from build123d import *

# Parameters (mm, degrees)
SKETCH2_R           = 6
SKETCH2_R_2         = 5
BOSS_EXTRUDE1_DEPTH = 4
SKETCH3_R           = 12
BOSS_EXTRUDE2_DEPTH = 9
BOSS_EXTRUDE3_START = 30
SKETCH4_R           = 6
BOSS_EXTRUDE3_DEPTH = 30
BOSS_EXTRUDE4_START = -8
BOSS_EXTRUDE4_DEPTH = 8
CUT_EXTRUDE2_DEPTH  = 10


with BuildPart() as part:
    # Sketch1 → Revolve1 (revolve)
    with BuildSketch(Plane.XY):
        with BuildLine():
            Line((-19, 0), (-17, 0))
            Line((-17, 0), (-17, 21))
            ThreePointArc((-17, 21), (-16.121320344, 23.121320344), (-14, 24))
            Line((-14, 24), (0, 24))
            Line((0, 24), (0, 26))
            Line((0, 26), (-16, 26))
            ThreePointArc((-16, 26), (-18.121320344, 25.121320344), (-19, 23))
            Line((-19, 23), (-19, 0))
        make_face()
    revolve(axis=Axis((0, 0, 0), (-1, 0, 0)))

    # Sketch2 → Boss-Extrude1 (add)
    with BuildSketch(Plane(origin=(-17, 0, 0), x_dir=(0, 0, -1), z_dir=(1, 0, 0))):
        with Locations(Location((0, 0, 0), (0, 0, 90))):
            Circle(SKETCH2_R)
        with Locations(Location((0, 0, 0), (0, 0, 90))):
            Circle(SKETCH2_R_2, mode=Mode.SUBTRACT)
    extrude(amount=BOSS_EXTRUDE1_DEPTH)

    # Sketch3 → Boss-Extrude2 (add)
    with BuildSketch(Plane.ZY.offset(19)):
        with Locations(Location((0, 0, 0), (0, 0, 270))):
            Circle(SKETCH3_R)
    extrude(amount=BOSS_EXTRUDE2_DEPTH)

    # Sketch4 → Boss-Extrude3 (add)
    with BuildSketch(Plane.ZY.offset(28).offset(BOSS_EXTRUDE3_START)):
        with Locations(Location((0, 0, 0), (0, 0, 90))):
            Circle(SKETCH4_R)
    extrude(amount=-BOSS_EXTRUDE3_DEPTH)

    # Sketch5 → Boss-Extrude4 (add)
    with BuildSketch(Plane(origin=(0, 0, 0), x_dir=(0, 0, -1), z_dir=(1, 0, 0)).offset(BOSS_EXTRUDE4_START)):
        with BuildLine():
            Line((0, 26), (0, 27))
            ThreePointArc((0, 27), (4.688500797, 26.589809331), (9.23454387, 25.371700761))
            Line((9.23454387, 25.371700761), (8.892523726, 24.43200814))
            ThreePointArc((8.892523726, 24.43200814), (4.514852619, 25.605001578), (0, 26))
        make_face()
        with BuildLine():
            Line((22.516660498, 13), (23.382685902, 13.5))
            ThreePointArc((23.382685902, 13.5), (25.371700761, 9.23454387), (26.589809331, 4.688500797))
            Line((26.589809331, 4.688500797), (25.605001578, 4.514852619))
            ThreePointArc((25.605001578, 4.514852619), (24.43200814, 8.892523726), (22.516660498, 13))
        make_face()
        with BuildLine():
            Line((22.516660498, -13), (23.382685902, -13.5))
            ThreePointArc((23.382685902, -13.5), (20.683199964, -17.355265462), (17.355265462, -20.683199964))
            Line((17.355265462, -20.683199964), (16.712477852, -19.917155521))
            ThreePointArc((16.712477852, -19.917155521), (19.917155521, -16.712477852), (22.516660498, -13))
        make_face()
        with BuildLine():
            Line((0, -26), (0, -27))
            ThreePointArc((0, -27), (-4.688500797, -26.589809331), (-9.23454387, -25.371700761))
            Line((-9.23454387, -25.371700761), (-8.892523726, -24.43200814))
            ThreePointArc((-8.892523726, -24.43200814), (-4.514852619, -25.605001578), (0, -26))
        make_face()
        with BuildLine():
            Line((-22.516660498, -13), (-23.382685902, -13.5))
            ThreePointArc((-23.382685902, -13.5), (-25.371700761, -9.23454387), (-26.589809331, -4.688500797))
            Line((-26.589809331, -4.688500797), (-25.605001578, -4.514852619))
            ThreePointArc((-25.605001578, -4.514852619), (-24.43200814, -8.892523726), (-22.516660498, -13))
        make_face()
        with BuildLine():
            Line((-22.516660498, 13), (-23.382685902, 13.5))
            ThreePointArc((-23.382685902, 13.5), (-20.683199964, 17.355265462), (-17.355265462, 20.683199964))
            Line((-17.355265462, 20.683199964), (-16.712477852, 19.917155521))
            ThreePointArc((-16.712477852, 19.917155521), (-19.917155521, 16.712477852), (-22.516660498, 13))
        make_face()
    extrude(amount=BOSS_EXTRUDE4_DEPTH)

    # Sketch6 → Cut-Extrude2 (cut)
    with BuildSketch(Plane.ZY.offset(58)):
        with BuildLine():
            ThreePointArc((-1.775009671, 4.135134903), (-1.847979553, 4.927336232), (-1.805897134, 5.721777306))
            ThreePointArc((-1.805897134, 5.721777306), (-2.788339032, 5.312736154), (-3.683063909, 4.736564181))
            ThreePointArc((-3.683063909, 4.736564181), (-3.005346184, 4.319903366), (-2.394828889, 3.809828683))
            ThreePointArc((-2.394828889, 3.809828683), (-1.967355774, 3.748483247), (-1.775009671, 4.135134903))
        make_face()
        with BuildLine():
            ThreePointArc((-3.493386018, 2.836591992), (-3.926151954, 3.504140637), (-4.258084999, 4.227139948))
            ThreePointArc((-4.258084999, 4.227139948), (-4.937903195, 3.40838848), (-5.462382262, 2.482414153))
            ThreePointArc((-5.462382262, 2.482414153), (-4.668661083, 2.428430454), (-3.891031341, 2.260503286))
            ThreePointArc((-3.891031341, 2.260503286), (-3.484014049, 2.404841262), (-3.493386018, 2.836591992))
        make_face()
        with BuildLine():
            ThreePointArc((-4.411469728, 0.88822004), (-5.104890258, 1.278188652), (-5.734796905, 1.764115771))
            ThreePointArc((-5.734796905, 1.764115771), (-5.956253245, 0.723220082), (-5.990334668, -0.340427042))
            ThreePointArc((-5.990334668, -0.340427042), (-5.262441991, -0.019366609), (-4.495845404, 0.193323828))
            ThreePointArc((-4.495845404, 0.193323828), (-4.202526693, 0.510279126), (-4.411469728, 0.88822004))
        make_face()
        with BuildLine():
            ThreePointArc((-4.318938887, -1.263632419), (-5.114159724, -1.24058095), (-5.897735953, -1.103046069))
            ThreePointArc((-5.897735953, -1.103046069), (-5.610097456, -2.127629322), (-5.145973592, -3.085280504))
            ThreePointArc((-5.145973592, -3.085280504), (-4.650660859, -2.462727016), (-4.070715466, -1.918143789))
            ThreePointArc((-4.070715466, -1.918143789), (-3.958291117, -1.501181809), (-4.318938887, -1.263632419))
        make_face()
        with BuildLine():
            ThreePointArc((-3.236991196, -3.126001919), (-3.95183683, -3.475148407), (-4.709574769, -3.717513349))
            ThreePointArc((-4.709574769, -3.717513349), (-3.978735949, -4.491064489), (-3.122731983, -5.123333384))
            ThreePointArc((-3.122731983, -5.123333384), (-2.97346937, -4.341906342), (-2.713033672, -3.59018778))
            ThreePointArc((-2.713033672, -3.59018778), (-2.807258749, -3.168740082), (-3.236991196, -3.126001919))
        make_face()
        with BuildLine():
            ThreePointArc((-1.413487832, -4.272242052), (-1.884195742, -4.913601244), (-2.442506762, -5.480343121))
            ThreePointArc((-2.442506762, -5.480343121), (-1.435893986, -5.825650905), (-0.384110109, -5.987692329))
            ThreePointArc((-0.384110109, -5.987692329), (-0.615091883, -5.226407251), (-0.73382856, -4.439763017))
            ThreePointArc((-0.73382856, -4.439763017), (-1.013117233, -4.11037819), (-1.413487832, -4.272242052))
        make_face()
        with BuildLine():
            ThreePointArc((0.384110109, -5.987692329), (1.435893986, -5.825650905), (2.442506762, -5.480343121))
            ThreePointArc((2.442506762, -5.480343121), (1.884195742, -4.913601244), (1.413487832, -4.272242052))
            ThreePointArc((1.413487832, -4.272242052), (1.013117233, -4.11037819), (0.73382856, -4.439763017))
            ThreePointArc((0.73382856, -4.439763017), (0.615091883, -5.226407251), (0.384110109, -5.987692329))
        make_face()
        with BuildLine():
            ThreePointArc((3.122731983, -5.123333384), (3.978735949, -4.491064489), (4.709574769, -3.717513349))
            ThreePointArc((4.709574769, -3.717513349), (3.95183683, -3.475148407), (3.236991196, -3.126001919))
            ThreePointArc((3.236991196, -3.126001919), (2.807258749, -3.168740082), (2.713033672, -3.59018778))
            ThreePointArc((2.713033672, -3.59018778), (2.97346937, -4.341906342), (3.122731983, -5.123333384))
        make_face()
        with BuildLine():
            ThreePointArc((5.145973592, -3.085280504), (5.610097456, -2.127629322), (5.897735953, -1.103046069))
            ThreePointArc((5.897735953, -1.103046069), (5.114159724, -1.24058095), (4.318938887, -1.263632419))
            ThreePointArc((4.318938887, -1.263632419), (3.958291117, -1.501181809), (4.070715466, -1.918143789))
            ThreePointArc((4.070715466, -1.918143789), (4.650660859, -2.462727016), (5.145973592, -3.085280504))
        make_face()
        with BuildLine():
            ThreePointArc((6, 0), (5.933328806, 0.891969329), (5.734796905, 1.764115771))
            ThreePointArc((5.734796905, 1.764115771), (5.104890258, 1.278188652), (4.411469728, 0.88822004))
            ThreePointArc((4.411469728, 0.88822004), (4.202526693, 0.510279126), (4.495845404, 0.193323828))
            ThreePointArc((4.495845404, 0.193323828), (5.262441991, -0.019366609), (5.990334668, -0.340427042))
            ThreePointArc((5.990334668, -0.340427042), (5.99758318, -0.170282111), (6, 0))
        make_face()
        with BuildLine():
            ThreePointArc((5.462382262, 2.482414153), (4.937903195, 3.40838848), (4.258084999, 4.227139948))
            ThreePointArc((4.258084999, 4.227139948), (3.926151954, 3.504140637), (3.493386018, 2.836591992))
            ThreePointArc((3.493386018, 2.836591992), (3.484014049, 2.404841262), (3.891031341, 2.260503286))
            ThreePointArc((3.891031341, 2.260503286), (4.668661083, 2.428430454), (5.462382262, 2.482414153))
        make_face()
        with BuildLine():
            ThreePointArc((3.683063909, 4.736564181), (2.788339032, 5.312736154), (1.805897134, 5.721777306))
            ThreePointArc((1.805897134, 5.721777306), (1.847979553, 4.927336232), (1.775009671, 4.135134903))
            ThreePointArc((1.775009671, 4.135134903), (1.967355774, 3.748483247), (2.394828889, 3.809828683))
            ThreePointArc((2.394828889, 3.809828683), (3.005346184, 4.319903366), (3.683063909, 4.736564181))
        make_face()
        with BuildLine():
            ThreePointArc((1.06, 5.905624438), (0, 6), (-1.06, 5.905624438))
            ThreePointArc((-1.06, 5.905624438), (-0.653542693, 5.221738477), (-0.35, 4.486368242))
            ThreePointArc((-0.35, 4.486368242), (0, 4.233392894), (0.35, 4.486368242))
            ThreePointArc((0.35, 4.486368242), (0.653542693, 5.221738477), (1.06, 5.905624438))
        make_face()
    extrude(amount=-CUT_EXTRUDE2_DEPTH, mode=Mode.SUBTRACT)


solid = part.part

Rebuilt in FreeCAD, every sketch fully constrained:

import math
import FreeCAD as App
import Part
import Sketcher
Q = App.Units.Quantity

doc = App.newDocument("Part")
body = doc.addObject("PartDesign::Body", "Body")

sketch1 = body.newObject("Sketcher::SketchObject", "Sketch")
sketch1.AttachmentSupport = (doc.getObject("XY_Plane"), [""])
sketch1.MapMode = "FlatFace"
sketch1.addGeometry([
    Part.LineSegment(App.Vector(-19, 0, 0), App.Vector(-17, 0, 0)),
    Part.LineSegment(App.Vector(-17, 0, 0), App.Vector(-17, 21, 0)),
    Part.ArcOfCircle(Part.Circle(App.Vector(-14, 21, 0), App.Vector(0, 0, 1), 3), math.radians(90), math.radians(180)),
    Part.LineSegment(App.Vector(-14, 24, 0), App.Vector(0, 24, 0)),
    Part.LineSegment(App.Vector(0, 24, 0), App.Vector(0, 26, 0)),
    Part.LineSegment(App.Vector(0, 26, 0), App.Vector(-16, 26, 0)),
    Part.ArcOfCircle(Part.Circle(App.Vector(-16, 23, 0), App.Vector(0, 0, 1), 3), math.radians(90), math.radians(180)),
    Part.LineSegment(App.Vector(-19, 23, 0), App.Vector(-19, 0, 0)),
], False)
sketch1.addConstraint([
    Sketcher.Constraint("Coincident", 0, 2, 1, 1),
    Sketcher.Constraint("Tangent", 1, 2, 2, 2),
    Sketcher.Constraint("Tangent", 2, 1, 3, 1),
    Sketcher.Constraint("Coincident", 3, 2, 4, 1),
    Sketcher.Constraint("Coincident", 4, 2, 5, 1),
    Sketcher.Constraint("Tangent", 5, 2, 6, 1),
    Sketcher.Constraint("Tangent", 6, 2, 7, 1),
    Sketcher.Constraint("Coincident", 7, 2, 0, 1),
    Sketcher.Constraint("Horizontal", 0),
    Sketcher.Constraint("Vertical", 1),
    Sketcher.Constraint("Horizontal", 3),
    Sketcher.Constraint("Vertical", 4),
    Sketcher.Constraint("Horizontal", 5),
    Sketcher.Constraint("Vertical", 7),
    Sketcher.Constraint("Equal", 2, 6),
    Sketcher.Constraint("PointOnObject", 0, 2, -1),
    Sketcher.Constraint("PointOnObject", 3, 2, -2),
    Sketcher.Constraint("Equal", 0, 4),
    Sketcher.Constraint("Radius", 2, Q("3 mm")),
    Sketcher.Constraint("DistanceX", 0, 1, 0, 2, Q("2 mm")),
    Sketcher.Constraint("DistanceX", 3, 1, 3, 2, Q("14 mm")),
    Sketcher.Constraint("DistanceY", 1, 1, 1, 2, Q("21 mm")),
])
revolution = body.newObject("PartDesign::Revolution", "Revolution")
revolution.Profile = sketch1
revolution.ReferenceAxis = (sketch1, ["H_Axis"])
revolution.Angle = 360

sketch2 = body.newObject("Sketcher::SketchObject", "Sketch001")
sketch2.AttachmentSupport = (doc.getObject("YZ_Plane"), [""])
sketch2.MapMode = "FlatFace"
sketch2.AttachmentOffset = App.Placement(App.Vector(0, 0, -17), App.Rotation())
sketch2.addGeometry([
    Part.Circle(App.Vector(0, 0, 0), App.Vector(0, 0, 1), 6),
    Part.Circle(App.Vector(0, 0, 0), App.Vector(0, 0, 1), 5),
], False)
sketch2.addConstraint([
    Sketcher.Constraint("Coincident", 0, 3, -1, 1),
    Sketcher.Constraint("Coincident", 1, 3, -1, 1),
    Sketcher.Constraint("Diameter", 0, Q("12 mm")),
    Sketcher.Constraint("Diameter", 1, Q("10 mm")),
])
pad1 = body.newObject("PartDesign::Pad", "Pad")
pad1.Profile = sketch2
pad1.Length = 4

sketch3 = body.newObject("Sketcher::SketchObject", "Sketch002")
sketch3.AttachmentSupport = (doc.getObject("YZ_Plane"), [""])
sketch3.MapMode = "FlatFace"
sketch3.AttachmentOffset = App.Placement(App.Vector(0, 0, -19), App.Rotation())
sketch3.addGeometry(Part.Circle(App.Vector(0, 0, 0), App.Vector(0, 0, 1), 12), False)
sketch3.addConstraint([
    Sketcher.Constraint("Coincident", 0, 3, -1, 1),
    Sketcher.Constraint("Diameter", 0, Q("24 mm")),
])
pad2 = body.newObject("PartDesign::Pad", "Pad001")
pad2.Profile = sketch3
pad2.Length = 9
pad2.Reversed = True

sketch4 = body.newObject("Sketcher::SketchObject", "Sketch003")
sketch4.AttachmentSupport = (doc.getObject("YZ_Plane"), [""])
sketch4.MapMode = "FlatFace"
sketch4.AttachmentOffset = App.Placement(App.Vector(0, 0, -58), App.Rotation())
sketch4.addGeometry(Part.Circle(App.Vector(0, 0, 0), App.Vector(0, 0, 1), 6), False)
sketch4.addConstraint([
    Sketcher.Constraint("Coincident", 0, 3, -1, 1),
    Sketcher.Constraint("Diameter", 0, Q("12 mm")),
])
pad3 = body.newObject("PartDesign::Pad", "Pad002")
pad3.Profile = sketch4
pad3.Length = 30

sketch5 = body.newObject("Sketcher::SketchObject", "Sketch004")
sketch5.AttachmentSupport = (doc.getObject("YZ_Plane"), [""])
sketch5.MapMode = "FlatFace"
sketch5.AttachmentOffset = App.Placement(App.Vector(0, 0, -8), App.Rotation())
sketch5.addGeometry([
    Part.LineSegment(App.Vector(27, 0, 0), App.Vector(26, 0, 0)),
    Part.ArcOfCircle(Part.Circle(App.Vector(0, 0, 0), App.Vector(0, 0, 1), 26), math.radians(-20), math.radians(0)),
    Part.LineSegment(App.Vector(24.4, -8.9, 0), App.Vector(25.4, -9.2, 0)),
    Part.ArcOfCircle(Part.Circle(App.Vector(0, 0, 0), App.Vector(0, 0, 1), 27), math.radians(-20), math.radians(0)),
    Part.LineSegment(App.Vector(13.5, -23.4, 0), App.Vector(13, -22.5, 0)),
    Part.ArcOfCircle(Part.Circle(App.Vector(0, 0, 0), App.Vector(0, 0, 1), 26), math.radians(-80), math.radians(-60)),
    Part.LineSegment(App.Vector(4.5, -25.6, 0), App.Vector(4.7, -26.6, 0)),
    Part.ArcOfCircle(Part.Circle(App.Vector(0, 0, 0), App.Vector(0, 0, 1), 27), math.radians(-80), math.radians(-60)),
    Part.LineSegment(App.Vector(-13.5, -23.4, 0), App.Vector(-13, -22.5, 0)),
    Part.ArcOfCircle(Part.Circle(App.Vector(0, 0, 0), App.Vector(0, 0, 1), 26), math.radians(-140), math.radians(-120)),
    Part.LineSegment(App.Vector(-19.9, -16.7, 0), App.Vector(-20.7, -17.4, 0)),
    Part.ArcOfCircle(Part.Circle(App.Vector(0, 0, 0), App.Vector(0, 0, 1), 27), math.radians(-140), math.radians(-120)),
    Part.LineSegment(App.Vector(-27, 0, 0), App.Vector(-26, 0, 0)),
    Part.ArcOfCircle(Part.Circle(App.Vector(0, 0, 0), App.Vector(0, 0, 1), 26), math.radians(160), math.radians(180)),
    Part.LineSegment(App.Vector(-24.4, 8.9, 0), App.Vector(-25.4, 9.2, 0)),
    Part.ArcOfCircle(Part.Circle(App.Vector(0, 0, 0), App.Vector(0, 0, 1), 27), math.radians(160), math.radians(180)),
    Part.LineSegment(App.Vector(-13.5, 23.4, 0), App.Vector(-13, 22.5, 0)),
    Part.ArcOfCircle(Part.Circle(App.Vector(0, 0, 0), App.Vector(0, 0, 1), 26), math.radians(100), math.radians(120)),
    Part.LineSegment(App.Vector(-4.5, 25.6, 0), App.Vector(-4.7, 26.6, 0)),
    Part.ArcOfCircle(Part.Circle(App.Vector(0, 0, 0), App.Vector(0, 0, 1), 27), math.radians(100), math.radians(120)),
    Part.LineSegment(App.Vector(13.5, 23.4, 0), App.Vector(13, 22.5, 0)),
    Part.ArcOfCircle(Part.Circle(App.Vector(0, 0, 0), App.Vector(0, 0, 1), 26), math.radians(40), math.radians(60)),
    Part.LineSegment(App.Vector(19.9, 16.7, 0), App.Vector(20.7, 17.4, 0)),
    Part.ArcOfCircle(Part.Circle(App.Vector(0, 0, 0), App.Vector(0, 0, 1), 27), math.radians(40), math.radians(60)),
], False)
sketch5.addConstraint([
    Sketcher.Constraint("Coincident", 0, 2, 1, 2),
    Sketcher.Constraint("Coincident", 1, 1, 2, 1),
    Sketcher.Constraint("Coincident", 2, 2, 3, 1),
    Sketcher.Constraint("Coincident", 3, 2, 0, 1),
    Sketcher.Constraint("Coincident", 4, 2, 5, 2),
    Sketcher.Constraint("Coincident", 5, 1, 6, 1),
    Sketcher.Constraint("Coincident", 6, 2, 7, 1),
    Sketcher.Constraint("Coincident", 7, 2, 4, 1),
    Sketcher.Constraint("Coincident", 8, 2, 9, 2),
    Sketcher.Constraint("Coincident", 9, 1, 10, 1),
    Sketcher.Constraint("Coincident", 10, 2, 11, 1),
    Sketcher.Constraint("Coincident", 11, 2, 8, 1),
    Sketcher.Constraint("Coincident", 12, 2, 13, 2),
    Sketcher.Constraint("Coincident", 13, 1, 14, 1),
    Sketcher.Constraint("Coincident", 14, 2, 15, 1),
    Sketcher.Constraint("Coincident", 15, 2, 12, 1),
    Sketcher.Constraint("Coincident", 16, 2, 17, 2),
    Sketcher.Constraint("Coincident", 17, 1, 18, 1),
    Sketcher.Constraint("Coincident", 18, 2, 19, 1),
    Sketcher.Constraint("Coincident", 19, 2, 16, 1),
    Sketcher.Constraint("Coincident", 20, 2, 21, 2),
    Sketcher.Constraint("Coincident", 21, 1, 22, 1),
    Sketcher.Constraint("Coincident", 22, 2, 23, 1),
    Sketcher.Constraint("Coincident", 23, 2, 20, 1),
    Sketcher.Constraint("Horizontal", 0),
    Sketcher.Constraint("Horizontal", 12),
    Sketcher.Constraint("Coincident", 1, 3, -1, 1),
    Sketcher.Constraint("Coincident", 3, 3, -1, 1),
    Sketcher.Constraint("Coincident", 5, 3, -1, 1),
    Sketcher.Constraint("Coincident", 7, 3, -1, 1),
    Sketcher.Constraint("Coincident", 9, 3, -1, 1),
    Sketcher.Constraint("Coincident", 11, 3, -1, 1),
    Sketcher.Constraint("Coincident", 13, 3, -1, 1),
    Sketcher.Constraint("Coincident", 15, 3, -1, 1),
    Sketcher.Constraint("Coincident", 17, 3, -1, 1),
    Sketcher.Constraint("Coincident", 19, 3, -1, 1),
    Sketcher.Constraint("Coincident", 21, 3, -1, 1),
    Sketcher.Constraint("Coincident", 23, 3, -1, 1),
    Sketcher.Constraint("Equal", 1, 5),
    Sketcher.Constraint("Equal", 3, 7),
    Sketcher.Constraint("Equal", 5, 9),
    Sketcher.Constraint("Equal", 7, 11),
    Sketcher.Constraint("Equal", 9, 13),
    Sketcher.Constraint("Equal", 11, 15),
    Sketcher.Constraint("Equal", 13, 17),
    Sketcher.Constraint("Equal", 15, 19),
    Sketcher.Constraint("Equal", 17, 21),
    Sketcher.Constraint("Equal", 19, 23),
    Sketcher.Constraint("PointOnObject", 0, 2, -1),
    Sketcher.Constraint("PointOnObject", 12, 2, -1),
    Sketcher.Constraint("Parallel", 2, 14),
    Sketcher.Constraint("Parallel", 4, 16),
    Sketcher.Constraint("Parallel", 6, 18),
    Sketcher.Constraint("Parallel", 8, 20),
    Sketcher.Constraint("Parallel", 10, 22),
    Sketcher.Constraint("Horizontal", 4, 2, 8, 2),
    Sketcher.Constraint("Horizontal", 7, 2, 11, 2),
    Sketcher.Constraint("Horizontal", 16, 2, 20, 2),
    Sketcher.Constraint("Vertical", 8, 2, 16, 2),
    Sketcher.Constraint("Radius", 1, Q("26 mm")),
    Sketcher.Constraint("Radius", 3, Q("27 mm")),
    Sketcher.Constraint("Angle", 2, Q("-20 deg")),
    Sketcher.Constraint("Angle", 4, Q("120 deg")),
    Sketcher.Constraint("Angle", 6, Q("-80 deg")),
    Sketcher.Constraint("Angle", 10, Q("-140 deg")),
    Sketcher.Constraint("DistanceX", -1, 1, 4, 2, Q("13 mm")),
    Sketcher.Constraint("DistanceY", 5, 1, -1, 1, Q("25.605002 mm")),
    Sketcher.Constraint("DistanceY", -1, 1, 17, 1, Q("25.605002 mm")),
    Sketcher.Constraint("DistanceX", -1, 1, 2, 2, Q("25.371701 mm")),
    Sketcher.Constraint("DistanceX", 10, 2, -1, 1, Q("20.6832 mm")),
    Sketcher.Constraint("DistanceX", 14, 2, -1, 1, Q("25.371701 mm")),
    Sketcher.Constraint("DistanceX", -1, 1, 22, 2, Q("20.6832 mm")),
])
pad4 = body.newObject("PartDesign::Pad", "Pad003")
pad4.Profile = sketch5
pad4.Length = 8

sketch6 = body.newObject("Sketcher::SketchObject", "Sketch005")
sketch6.AttachmentSupport = (doc.getObject("YZ_Plane"), [""])
sketch6.MapMode = "FlatFace"
sketch6.AttachmentOffset = App.Placement(App.Vector(0, 0, -58), App.Rotation())
sketch6.addGeometry([
    Part.ArcOfCircle(Part.Circle(App.Vector(5.03, 3.65, 0), App.Vector(0, 0, 1), 5.5), math.radians(-99.41), math.radians(-82.82)),
    Part.ArcOfCircle(Part.Circle(App.Vector(0, 0, 0), App.Vector(0, 0, 1), 6), math.radians(-38), math.radians(-18)),
    Part.ArcOfCircle(Part.Circle(App.Vector(-0.14, -6.22, 0), App.Vector(0, 0, 1), 5.5), math.radians(27.44), math.radians(44.03)),
    Part.ArcOfCircle(Part.Circle(App.Vector(4.07, -2.14, 0), App.Vector(0, 0, 1), 0.37), math.radians(81), math.radians(224)),
    Part.ArcOfCircle(Part.Circle(App.Vector(6.15, 0.89, 0), App.Vector(0, 0, 1), 5.5), math.radians(-127.1), math.radians(-110.51)),
    Part.ArcOfCircle(Part.Circle(App.Vector(0, 0, 0), App.Vector(0, 0, 1), 6), math.radians(-66), math.radians(-45)),
    Part.ArcOfCircle(Part.Circle(App.Vector(-3.02, -5.44, 0), App.Vector(0, 0, 1), 5.5), math.radians(-0.26), math.radians(16.33)),
    Part.ArcOfCircle(Part.Circle(App.Vector(2.61, -3.79, 0), App.Vector(0, 0, 1), 0.37), math.radians(53), math.radians(196)),
    Part.ArcOfCircle(Part.Circle(App.Vector(5.86, -2.07, 0), App.Vector(0, 0, 1), 5.5), math.radians(-154.79), math.radians(-138.2)),
    Part.ArcOfCircle(Part.Circle(App.Vector(0, 0, 0), App.Vector(0, 0, 1), 6), math.radians(-93), math.radians(-73)),
    Part.ArcOfCircle(Part.Circle(App.Vector(-5.2, -3.41, 0), App.Vector(0, 0, 1), 5.5), math.radians(-27.95), math.radians(-11.36)),
    Part.ArcOfCircle(Part.Circle(App.Vector(0.55, -4.57, 0), App.Vector(0, 0, 1), 0.37), math.radians(25), math.radians(169)),
    Part.ArcOfCircle(Part.Circle(App.Vector(4.23, -4.56, 0), App.Vector(0, 0, 1), 5.5), math.radians(177.51), math.radians(194.1)),
    Part.ArcOfCircle(Part.Circle(App.Vector(0, 0, 0), App.Vector(0, 0, 1), 6), math.radians(-121), math.radians(-101)),
    Part.ArcOfCircle(Part.Circle(App.Vector(-6.19, -0.61, 0), App.Vector(0, 0, 1), 5.5), math.radians(-55.64), math.radians(-39.05)),
    Part.ArcOfCircle(Part.Circle(App.Vector(-1.63, -4.3, 0), App.Vector(0, 0, 1), 0.37), math.radians(-2), math.radians(141)),
    Part.ArcOfCircle(Part.Circle(App.Vector(1.63, -6, 0), App.Vector(0, 0, 1), 5.5), math.radians(149.82), math.radians(166.41)),
    Part.ArcOfCircle(Part.Circle(App.Vector(0, 0, 0), App.Vector(0, 0, 1), 6), math.radians(-149), math.radians(-128)),
    Part.ArcOfCircle(Part.Circle(App.Vector(-5.76, 2.34, 0), App.Vector(0, 0, 1), 5.5), math.radians(-83.33), math.radians(-66.74)),
    Part.ArcOfCircle(Part.Circle(App.Vector(-3.44, -3.05, 0), App.Vector(0, 0, 1), 0.37), math.radians(-30), math.radians(113)),
    Part.ArcOfCircle(Part.Circle(App.Vector(-1.35, -6.07, 0), App.Vector(0, 0, 1), 5.5), math.radians(122.13), math.radians(138.72)),
    Part.ArcOfCircle(Part.Circle(App.Vector(0, 0, 0), App.Vector(0, 0, 1), 6), math.radians(-176), math.radians(-156)),
    Part.ArcOfCircle(Part.Circle(App.Vector(-4.01, 4.75, 0), App.Vector(0, 0, 1), 5.5), math.radians(-111.03), math.radians(-94.44)),
    Part.ArcOfCircle(Part.Circle(App.Vector(-4.47, -1.1, 0), App.Vector(0, 0, 1), 0.37), math.radians(-58), math.radians(86)),
    Part.ArcOfCircle(Part.Circle(App.Vector(0, 0, 0), App.Vector(0, 0, 1), 6), math.radians(156), math.radians(176)),
    Part.ArcOfCircle(Part.Circle(App.Vector(-1.35, 6.07, 0), App.Vector(0, 0, 1), 5.5), math.radians(-138.72), math.radians(-122.13)),
    Part.ArcOfCircle(Part.Circle(App.Vector(-4.47, 1.1, 0), App.Vector(0, 0, 1), 0.37), math.radians(-86), math.radians(58)),
    Part.ArcOfCircle(Part.Circle(App.Vector(-4.01, -4.75, 0), App.Vector(0, 0, 1), 5.5), math.radians(94.44), math.radians(111.03)),
    Part.ArcOfCircle(Part.Circle(App.Vector(0, 0, 0), App.Vector(0, 0, 1), 6), math.radians(128), math.radians(149)),
    Part.ArcOfCircle(Part.Circle(App.Vector(1.63, 6, 0), App.Vector(0, 0, 1), 5.5), math.radians(-166.41), math.radians(-149.82)),
    Part.ArcOfCircle(Part.Circle(App.Vector(-3.44, 3.05, 0), App.Vector(0, 0, 1), 0.37), math.radians(-113), math.radians(30)),
    Part.ArcOfCircle(Part.Circle(App.Vector(-5.76, -2.34, 0), App.Vector(0, 0, 1), 5.5), math.radians(66.74), math.radians(83.33)),
    Part.ArcOfCircle(Part.Circle(App.Vector(0, 0, 0), App.Vector(0, 0, 1), 6), math.radians(101), math.radians(121)),
    Part.ArcOfCircle(Part.Circle(App.Vector(4.23, 4.56, 0), App.Vector(0, 0, 1), 5.5), math.radians(165.9), math.radians(182.49)),
    Part.ArcOfCircle(Part.Circle(App.Vector(-1.63, 4.3, 0), App.Vector(0, 0, 1), 0.37), math.radians(-141), math.radians(2)),
    Part.ArcOfCircle(Part.Circle(App.Vector(-6.19, 0.61, 0), App.Vector(0, 0, 1), 5.5), math.radians(39.05), math.radians(55.64)),
    Part.ArcOfCircle(Part.Circle(App.Vector(0, 0, 0), App.Vector(0, 0, 1), 6), math.radians(72.9), math.radians(90)),
    Part.ArcOfCircle(Part.Circle(App.Vector(5.86, 2.07, 0), App.Vector(0, 0, 1), 5.5), math.radians(138.2), math.radians(154.79)),
    Part.ArcOfCircle(Part.Circle(App.Vector(0.55, 4.57, 0), App.Vector(0, 0, 1), 0.37), math.radians(-169), math.radians(-25)),
    Part.ArcOfCircle(Part.Circle(App.Vector(-5.2, 3.41, 0), App.Vector(0, 0, 1), 5.5), math.radians(11.36), math.radians(27.95)),
    Part.ArcOfCircle(Part.Circle(App.Vector(0, 0, 0), App.Vector(0, 0, 1), 6), math.radians(90), math.radians(93.25)),
    Part.ArcOfCircle(Part.Circle(App.Vector(0, 0, 0), App.Vector(0, 0, 1), 6), math.radians(45), math.radians(66)),
    Part.ArcOfCircle(Part.Circle(App.Vector(6.15, -0.89, 0), App.Vector(0, 0, 1), 5.5), math.radians(110.51), math.radians(127.1)),
    Part.ArcOfCircle(Part.Circle(App.Vector(2.61, 3.79, 0), App.Vector(0, 0, 1), 0.37), math.radians(164), math.radians(307)),
    Part.ArcOfCircle(Part.Circle(App.Vector(-3.02, 5.44, 0), App.Vector(0, 0, 1), 5.5), math.radians(-16.33), math.radians(0.26)),
    Part.ArcOfCircle(Part.Circle(App.Vector(0, 0, 0), App.Vector(0, 0, 1), 6), math.radians(18), math.radians(38)),
    Part.ArcOfCircle(Part.Circle(App.Vector(5.03, -3.65, 0), App.Vector(0, 0, 1), 5.5), math.radians(82.82), math.radians(99.41)),
    Part.ArcOfCircle(Part.Circle(App.Vector(4.07, 2.14, 0), App.Vector(0, 0, 1), 0.37), math.radians(136), math.radians(279)),
    Part.ArcOfCircle(Part.Circle(App.Vector(-0.14, 6.22, 0), App.Vector(0, 0, 1), 5.5), math.radians(-44.03), math.radians(-27.44)),
    Part.ArcOfCircle(Part.Circle(App.Vector(0, 0, 0), App.Vector(0, 0, 1), 6), math.radians(-10), math.radians(10)),
    Part.ArcOfCircle(Part.Circle(App.Vector(2.76, -5.57, 0), App.Vector(0, 0, 1), 5.5), math.radians(55.13), math.radians(71.72)),
    Part.ArcOfCircle(Part.Circle(App.Vector(4.6, 0, 0), App.Vector(0, 0, 1), 0.37), math.radians(108), math.radians(252)),
    Part.ArcOfCircle(Part.Circle(App.Vector(2.76, 5.57, 0), App.Vector(0, 0, 1), 5.5), math.radians(-71.72), math.radians(-55.13)),
], False)
sketch6.addConstraint([
    Sketcher.Constraint("Coincident", 0, 2, 1, 2),
    Sketcher.Constraint("Coincident", 1, 1, 2, 1),
    Sketcher.Constraint("Tangent", 2, 2, 3, 2),
    Sketcher.Constraint("Tangent", 3, 1, 0, 1),
    Sketcher.Constraint("Coincident", 4, 2, 5, 2),
    Sketcher.Constraint("Coincident", 5, 1, 6, 1),
    Sketcher.Constraint("Tangent", 6, 2, 7, 2),
    Sketcher.Constraint("Tangent", 7, 1, 4, 1),
    Sketcher.Constraint("Coincident", 8, 2, 9, 2),
    Sketcher.Constraint("Coincident", 9, 1, 10, 1),
    Sketcher.Constraint("Tangent", 10, 2, 11, 2),
    Sketcher.Constraint("Tangent", 11, 1, 8, 1),
    Sketcher.Constraint("Coincident", 12, 2, 13, 2),
    Sketcher.Constraint("Coincident", 13, 1, 14, 1),
    Sketcher.Constraint("Tangent", 14, 2, 15, 2),
    Sketcher.Constraint("Tangent", 15, 1, 12, 1),
    Sketcher.Constraint("Coincident", 16, 2, 17, 2),
    Sketcher.Constraint("Coincident", 17, 1, 18, 1),
    Sketcher.Constraint("Tangent", 18, 2, 19, 2),
    Sketcher.Constraint("Tangent", 19, 1, 16, 1),
    Sketcher.Constraint("Coincident", 20, 2, 21, 2),
    Sketcher.Constraint("Coincident", 21, 1, 22, 1),
    Sketcher.Constraint("Tangent", 22, 2, 23, 2),
    Sketcher.Constraint("Tangent", 23, 1, 20, 1),
    Sketcher.Constraint("Coincident", 24, 1, 25, 1),
    Sketcher.Constraint("Tangent", 25, 2, 26, 2),
    Sketcher.Constraint("Tangent", 26, 1, 27, 1),
    Sketcher.Constraint("Coincident", 27, 2, 24, 2),
    Sketcher.Constraint("Coincident", 28, 1, 29, 1),
    Sketcher.Constraint("Tangent", 29, 2, 30, 2),
    Sketcher.Constraint("Tangent", 30, 1, 31, 1),
    Sketcher.Constraint("Coincident", 31, 2, 28, 2),
    Sketcher.Constraint("Coincident", 32, 1, 33, 1),
    Sketcher.Constraint("Tangent", 33, 2, 34, 2),
    Sketcher.Constraint("Tangent", 34, 1, 35, 1),
    Sketcher.Constraint("Coincident", 35, 2, 32, 2),
    Sketcher.Constraint("Coincident", 36, 1, 37, 1),
    Sketcher.Constraint("Tangent", 37, 2, 38, 2),
    Sketcher.Constraint("Tangent", 38, 1, 39, 1),
    Sketcher.Constraint("Coincident", 39, 2, 40, 2),
    Sketcher.Constraint("Tangent", 40, 1, 36, 2),
    Sketcher.Constraint("Coincident", 41, 1, 42, 1),
    Sketcher.Constraint("Tangent", 42, 2, 43, 2),
    Sketcher.Constraint("Tangent", 43, 1, 44, 1),
    Sketcher.Constraint("Coincident", 44, 2, 41, 2),
    Sketcher.Constraint("Coincident", 45, 1, 46, 1),
    Sketcher.Constraint("Tangent", 46, 2, 47, 2),
    Sketcher.Constraint("Tangent", 47, 1, 48, 1),
    Sketcher.Constraint("Coincident", 48, 2, 45, 2),
    Sketcher.Constraint("Coincident", 49, 1, 50, 1),
    Sketcher.Constraint("Tangent", 50, 2, 51, 2),
    Sketcher.Constraint("Tangent", 51, 1, 52, 1),
    Sketcher.Constraint("Coincident", 52, 2, 49, 2),
    Sketcher.Constraint("Coincident", 1, 3, -1, 1),
    Sketcher.Constraint("Coincident", 5, 3, -1, 1),
    Sketcher.Constraint("Coincident", 9, 3, -1, 1),
    Sketcher.Constraint("Coincident", 13, 3, -1, 1),
    Sketcher.Constraint("Coincident", 17, 3, -1, 1),
    Sketcher.Constraint("Coincident", 21, 3, -1, 1),
    Sketcher.Constraint("Coincident", 24, 3, -1, 1),
    Sketcher.Constraint("Coincident", 28, 3, -1, 1),
    Sketcher.Constraint("Coincident", 32, 3, -1, 1),
    Sketcher.Constraint("Coincident", 36, 3, -1, 1),
    Sketcher.Constraint("Coincident", 41, 3, -1, 1),
    Sketcher.Constraint("Coincident", 45, 3, -1, 1),
    Sketcher.Constraint("Coincident", 49, 3, -1, 1),
    Sketcher.Constraint("Equal", 0, 2),
    Sketcher.Constraint("Equal", 2, 4),
    Sketcher.Constraint("Equal", 1, 5),
    Sketcher.Constraint("Equal", 4, 6),
    Sketcher.Constraint("Equal", 3, 7),
    Sketcher.Constraint("Equal", 6, 8),
    Sketcher.Constraint("Equal", 5, 9),
    Sketcher.Constraint("Equal", 8, 10),
    Sketcher.Constraint("Equal", 7, 11),
    Sketcher.Constraint("Equal", 10, 12),
    Sketcher.Constraint("Equal", 9, 13),
    Sketcher.Constraint("Equal", 12, 14),
    Sketcher.Constraint("Equal", 11, 15),
    Sketcher.Constraint("Equal", 14, 16),
    Sketcher.Constraint("Equal", 13, 17),
    Sketcher.Constraint("Equal", 16, 18),
    Sketcher.Constraint("Equal", 15, 19),
    Sketcher.Constraint("Equal", 18, 20),
    Sketcher.Constraint("Equal", 17, 21),
    Sketcher.Constraint("Equal", 20, 22),
    Sketcher.Constraint("Equal", 19, 23),
    Sketcher.Constraint("Equal", 21, 24),
    Sketcher.Constraint("Equal", 22, 25),
    Sketcher.Constraint("Equal", 23, 26),
    Sketcher.Constraint("Equal", 25, 27),
    Sketcher.Constraint("Equal", 24, 28),
    Sketcher.Constraint("Equal", 27, 29),
    Sketcher.Constraint("Equal", 26, 30),
    Sketcher.Constraint("Equal", 29, 31),
    Sketcher.Constraint("Equal", 28, 32),
    Sketcher.Constraint("Equal", 31, 33),
    Sketcher.Constraint("Equal", 30, 34),
    Sketcher.Constraint("Equal", 33, 35),
    Sketcher.Constraint("Equal", 32, 36),
    Sketcher.Constraint("Equal", 35, 37),
    Sketcher.Constraint("Equal", 34, 38),
    Sketcher.Constraint("Equal", 37, 39),
    Sketcher.Constraint("Equal", 36, 40),
    Sketcher.Constraint("Equal", 40, 41),
    Sketcher.Constraint("Equal", 39, 42),
    Sketcher.Constraint("Equal", 38, 43),
    Sketcher.Constraint("Equal", 42, 44),
    Sketcher.Constraint("Equal", 41, 45),
    Sketcher.Constraint("Equal", 44, 46),
    Sketcher.Constraint("Equal", 43, 47),
    Sketcher.Constraint("Equal", 46, 48),
    Sketcher.Constraint("Equal", 45, 49),
    Sketcher.Constraint("Equal", 48, 50),
    Sketcher.Constraint("Equal", 47, 51),
    Sketcher.Constraint("Equal", 50, 52),
    Sketcher.Constraint("Symmetric", 20, 3, 25, 3, -1),
    Sketcher.Constraint("Symmetric", 22, 3, 27, 3, -1),
    Sketcher.Constraint("Symmetric", 16, 3, 29, 3, -1),
    Sketcher.Constraint("Symmetric", 18, 3, 31, 3, -1),
    Sketcher.Constraint("Symmetric", 12, 3, 33, 3, -1),
    Sketcher.Constraint("Symmetric", 14, 3, 35, 3, -1),
    Sketcher.Constraint("Symmetric", 8, 3, 37, 3, -1),
    Sketcher.Constraint("Symmetric", 10, 3, 39, 3, -1),
    Sketcher.Constraint("Symmetric", 4, 3, 42, 3, -1),
    Sketcher.Constraint("Symmetric", 6, 3, 44, 3, -1),
    Sketcher.Constraint("Symmetric", 0, 3, 46, 3, -1),
    Sketcher.Constraint("Symmetric", 2, 3, 48, 3, -1),
    Sketcher.Constraint("Symmetric", 50, 3, 52, 3, -1),
    Sketcher.Constraint("PointOnObject", 40, 1, -2),
    Sketcher.Constraint("Radius", 1, Q("6 mm")),
    Sketcher.Constraint("Radius", 0, Q("5.5 mm")),
    Sketcher.Constraint("DistanceY", 49, 1, -1, 1, Q("1.06 mm")),
    Sketcher.Constraint("DistanceY", 50, 2, -1, 1, Q("0.35 mm")),
    Sketcher.Constraint("DistanceX", -1, 1, 51, 3, Q("4.601999 mm")),
    Sketcher.Constraint("DistanceX", 19, 1, -1, 1, Q("3.126002 mm")),
    Sketcher.Constraint("DistanceY", -1, 1, 0, 3, Q("3.650979 mm")),
    Sketcher.Constraint("DistanceX", 2, 3, -1, 1, Q("0.14484 mm")),
    Sketcher.Constraint("DistanceY", 2, 3, -1, 1, Q("6.21721 mm")),
    Sketcher.Constraint("DistanceX", -1, 1, 4, 3, Q("6.154421 mm")),
    Sketcher.Constraint("DistanceX", 6, 3, -1, 1, Q("3.017531 mm")),
    Sketcher.Constraint("DistanceY", 7, 3, -1, 1, Q("3.787371 mm")),
    Sketcher.Constraint("DistanceX", 10, 3, -1, 1, Q("5.198942 mm")),
    Sketcher.Constraint("DistanceX", -1, 1, 11, 3, Q("0.55471 mm")),
    Sketcher.Constraint("DistanceX", 14, 3, -1, 1, Q("6.189338 mm")),
    Sketcher.Constraint("DistanceY", 14, 3, -1, 1, Q("0.605618 mm")),
    Sketcher.Constraint("DistanceX", 15, 3, -1, 1, Q("1.631891 mm")),
    Sketcher.Constraint("DistanceX", 18, 3, -1, 1, Q("5.761832 mm")),
    Sketcher.Constraint("DistanceY", -1, 1, 18, 3, Q("2.34008 mm")),
    Sketcher.Constraint("DistanceY", 19, 3, -1, 1, Q("3.05169 mm")),
    Sketcher.Constraint("DistanceY", 20, 3, -1, 1, Q("6.071212 mm")),
    Sketcher.Constraint("DistanceX", 22, 3, -1, 1, Q("4.014359 mm")),
    Sketcher.Constraint("DistanceY", 23, 3, -1, 1, Q("1.10133 mm")),
    Sketcher.Constraint("DistanceX", -1, 1, 2, 2, Q("3.809829 mm")),
    Sketcher.Constraint("DistanceX", -1, 1, 4, 2, Q("4.22714 mm")),
    Sketcher.Constraint("DistanceX", -1, 1, 11, 1, Q("0.88822 mm")),
    Sketcher.Constraint("DistanceY", 11, 1, -1, 1, Q("4.41147 mm")),
    Sketcher.Constraint("DistanceY", 15, 1, -1, 1, Q("4.318939 mm")),
    Sketcher.Constraint("DistanceY", 21, 1, -1, 1, Q("0.38411 mm")),
])
pocket1 = body.newObject("PartDesign::Pocket", "Pocket")
pocket1.Profile = sketch6
pocket1.Length = 10
pocket1.Reversed = True

doc.recompute()
